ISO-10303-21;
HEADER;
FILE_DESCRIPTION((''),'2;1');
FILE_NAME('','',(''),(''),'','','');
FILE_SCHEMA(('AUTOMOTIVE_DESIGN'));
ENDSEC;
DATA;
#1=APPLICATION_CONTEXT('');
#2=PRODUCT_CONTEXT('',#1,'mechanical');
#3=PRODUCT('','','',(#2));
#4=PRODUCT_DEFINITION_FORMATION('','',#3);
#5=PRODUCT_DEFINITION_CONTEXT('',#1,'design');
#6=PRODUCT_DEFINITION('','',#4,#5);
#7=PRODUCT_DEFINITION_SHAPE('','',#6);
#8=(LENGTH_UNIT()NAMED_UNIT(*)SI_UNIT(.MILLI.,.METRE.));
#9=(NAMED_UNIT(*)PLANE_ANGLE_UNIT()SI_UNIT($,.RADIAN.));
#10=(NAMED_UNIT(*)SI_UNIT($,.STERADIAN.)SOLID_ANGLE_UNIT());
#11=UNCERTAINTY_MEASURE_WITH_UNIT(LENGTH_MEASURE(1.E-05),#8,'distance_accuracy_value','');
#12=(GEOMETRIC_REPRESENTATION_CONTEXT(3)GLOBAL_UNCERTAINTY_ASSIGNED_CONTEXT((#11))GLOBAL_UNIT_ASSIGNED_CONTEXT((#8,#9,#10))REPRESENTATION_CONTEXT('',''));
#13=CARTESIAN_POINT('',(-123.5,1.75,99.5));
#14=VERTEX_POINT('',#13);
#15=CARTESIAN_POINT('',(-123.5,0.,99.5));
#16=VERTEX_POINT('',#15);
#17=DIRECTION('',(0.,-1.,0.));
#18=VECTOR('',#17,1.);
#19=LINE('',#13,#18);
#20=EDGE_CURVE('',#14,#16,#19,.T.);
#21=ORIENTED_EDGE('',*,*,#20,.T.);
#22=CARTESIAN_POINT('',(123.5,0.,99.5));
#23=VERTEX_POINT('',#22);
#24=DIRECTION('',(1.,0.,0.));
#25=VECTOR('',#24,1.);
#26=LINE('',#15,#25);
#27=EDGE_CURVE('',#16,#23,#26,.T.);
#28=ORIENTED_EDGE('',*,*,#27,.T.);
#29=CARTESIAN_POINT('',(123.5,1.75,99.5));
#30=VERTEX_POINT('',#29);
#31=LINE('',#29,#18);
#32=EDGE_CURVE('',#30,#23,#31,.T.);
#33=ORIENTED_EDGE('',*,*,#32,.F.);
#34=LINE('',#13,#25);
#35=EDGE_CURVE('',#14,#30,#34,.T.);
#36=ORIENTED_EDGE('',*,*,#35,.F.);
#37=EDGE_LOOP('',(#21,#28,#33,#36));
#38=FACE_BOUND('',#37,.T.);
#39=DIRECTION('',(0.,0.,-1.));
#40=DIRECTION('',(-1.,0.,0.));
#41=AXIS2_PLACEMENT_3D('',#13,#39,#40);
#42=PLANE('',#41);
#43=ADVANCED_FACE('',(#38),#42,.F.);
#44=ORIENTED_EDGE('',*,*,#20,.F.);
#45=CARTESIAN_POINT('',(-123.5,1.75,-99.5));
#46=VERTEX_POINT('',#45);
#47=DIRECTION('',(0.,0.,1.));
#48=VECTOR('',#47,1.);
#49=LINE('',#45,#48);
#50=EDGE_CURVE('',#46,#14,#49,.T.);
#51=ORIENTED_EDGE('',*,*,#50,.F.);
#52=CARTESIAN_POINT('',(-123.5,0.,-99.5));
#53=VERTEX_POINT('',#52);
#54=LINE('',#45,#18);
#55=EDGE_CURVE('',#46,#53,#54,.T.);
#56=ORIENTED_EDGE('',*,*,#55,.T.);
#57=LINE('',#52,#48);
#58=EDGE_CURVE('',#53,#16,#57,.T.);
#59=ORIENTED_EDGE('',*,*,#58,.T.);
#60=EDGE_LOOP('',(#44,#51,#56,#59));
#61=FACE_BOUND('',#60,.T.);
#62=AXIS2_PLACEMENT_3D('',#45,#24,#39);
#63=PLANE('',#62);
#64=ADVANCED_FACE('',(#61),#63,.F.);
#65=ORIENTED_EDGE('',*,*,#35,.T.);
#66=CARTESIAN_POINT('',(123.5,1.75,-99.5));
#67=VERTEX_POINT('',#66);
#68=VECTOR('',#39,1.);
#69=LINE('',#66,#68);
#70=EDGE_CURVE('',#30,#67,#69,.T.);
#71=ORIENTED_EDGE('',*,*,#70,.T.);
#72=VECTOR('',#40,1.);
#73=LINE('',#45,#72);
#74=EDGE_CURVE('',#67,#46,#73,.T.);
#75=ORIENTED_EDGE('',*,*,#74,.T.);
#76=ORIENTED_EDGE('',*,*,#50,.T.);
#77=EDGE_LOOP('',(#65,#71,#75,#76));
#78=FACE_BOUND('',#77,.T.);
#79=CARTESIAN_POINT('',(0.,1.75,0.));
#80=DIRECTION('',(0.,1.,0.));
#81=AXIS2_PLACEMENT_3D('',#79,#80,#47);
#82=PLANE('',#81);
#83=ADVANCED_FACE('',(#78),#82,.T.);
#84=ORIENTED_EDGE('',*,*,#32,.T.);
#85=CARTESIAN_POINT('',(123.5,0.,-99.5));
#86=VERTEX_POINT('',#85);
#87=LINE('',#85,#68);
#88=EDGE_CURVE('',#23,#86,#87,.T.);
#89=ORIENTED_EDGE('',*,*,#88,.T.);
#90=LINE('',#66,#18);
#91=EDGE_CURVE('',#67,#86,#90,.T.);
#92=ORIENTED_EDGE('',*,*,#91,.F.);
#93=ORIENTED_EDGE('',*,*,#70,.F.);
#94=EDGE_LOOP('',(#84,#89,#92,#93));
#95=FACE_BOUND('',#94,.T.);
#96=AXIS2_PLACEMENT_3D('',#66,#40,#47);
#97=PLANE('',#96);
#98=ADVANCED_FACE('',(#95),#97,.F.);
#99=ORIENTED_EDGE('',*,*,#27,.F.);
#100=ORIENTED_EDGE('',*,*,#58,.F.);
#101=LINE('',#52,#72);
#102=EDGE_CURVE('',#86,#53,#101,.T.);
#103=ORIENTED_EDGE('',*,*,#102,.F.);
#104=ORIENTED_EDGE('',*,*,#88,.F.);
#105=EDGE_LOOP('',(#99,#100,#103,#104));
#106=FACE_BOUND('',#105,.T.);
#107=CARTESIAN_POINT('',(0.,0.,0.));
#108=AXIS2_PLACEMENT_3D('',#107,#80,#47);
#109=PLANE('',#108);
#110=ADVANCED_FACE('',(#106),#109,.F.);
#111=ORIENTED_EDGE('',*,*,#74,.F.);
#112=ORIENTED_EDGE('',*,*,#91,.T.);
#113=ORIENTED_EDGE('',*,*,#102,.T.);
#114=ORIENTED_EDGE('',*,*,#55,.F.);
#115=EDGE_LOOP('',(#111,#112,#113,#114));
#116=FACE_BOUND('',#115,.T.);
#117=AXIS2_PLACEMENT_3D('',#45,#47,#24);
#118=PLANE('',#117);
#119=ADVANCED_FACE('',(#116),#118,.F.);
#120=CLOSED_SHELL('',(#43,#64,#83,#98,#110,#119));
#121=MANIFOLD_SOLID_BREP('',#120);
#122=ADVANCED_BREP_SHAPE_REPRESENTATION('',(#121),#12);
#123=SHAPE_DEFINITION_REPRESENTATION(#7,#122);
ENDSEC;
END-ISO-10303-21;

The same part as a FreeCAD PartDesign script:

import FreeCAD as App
import Part
import Sketcher
from FreeCAD import Vector


def add_polygon(sketch, points):
    """Adds a closed chain of lines whose ends are joined by coincident constraints."""
    first, n = sketch.GeometryCount, len(points)
    for a, b in zip(points, points[1:] + points[:1]):
        sketch.addGeometry(Part.LineSegment(App.Vector(*a, 0), App.Vector(*b, 0)), False)
    for i in range(n):
        sketch.addConstraint(Sketcher.Constraint("Coincident", first + i, 2, first + (i + 1) % n, 1))

doc = App.newDocument("Part")
body = doc.addObject("PartDesign::Body", "Body")

# Sketch on XZ plane
sketch1 = body.newObject("Sketcher::SketchObject", "Sketch")
sketch1.AttachmentSupport = (doc.getObject("XZ_Plane"), [""])
sketch1.MapMode = "FlatFace"
add_polygon(sketch1, [(-123.5, -99.5), (-123.5, 99.5), (123.5, 99.5), (123.5, -99.5)])  # lines 0-3
sketch1.addConstraint(Sketcher.Constraint("Vertical", 0))
sketch1.addConstraint(Sketcher.Constraint("Horizontal", 1))
sketch1.addConstraint(Sketcher.Constraint("Vertical", 2))
sketch1.addConstraint(Sketcher.Constraint("Horizontal", 3))
sketch1.addConstraint(Sketcher.Constraint("Symmetric", 0, 2, 2, 2, -1, 1))
sketch1.addConstraint(Sketcher.Constraint("DistanceX", 1, 1, 1, 2, 247.0))
sketch1.addConstraint(Sketcher.Constraint("DistanceY", 0, 1, 0, 2, 199.0))
pad1 = body.newObject("PartDesign::Pad", "Pad")
pad1.Profile = sketch1
pad1.Length = 1.75
pad1.Reversed = True

doc.recompute()
